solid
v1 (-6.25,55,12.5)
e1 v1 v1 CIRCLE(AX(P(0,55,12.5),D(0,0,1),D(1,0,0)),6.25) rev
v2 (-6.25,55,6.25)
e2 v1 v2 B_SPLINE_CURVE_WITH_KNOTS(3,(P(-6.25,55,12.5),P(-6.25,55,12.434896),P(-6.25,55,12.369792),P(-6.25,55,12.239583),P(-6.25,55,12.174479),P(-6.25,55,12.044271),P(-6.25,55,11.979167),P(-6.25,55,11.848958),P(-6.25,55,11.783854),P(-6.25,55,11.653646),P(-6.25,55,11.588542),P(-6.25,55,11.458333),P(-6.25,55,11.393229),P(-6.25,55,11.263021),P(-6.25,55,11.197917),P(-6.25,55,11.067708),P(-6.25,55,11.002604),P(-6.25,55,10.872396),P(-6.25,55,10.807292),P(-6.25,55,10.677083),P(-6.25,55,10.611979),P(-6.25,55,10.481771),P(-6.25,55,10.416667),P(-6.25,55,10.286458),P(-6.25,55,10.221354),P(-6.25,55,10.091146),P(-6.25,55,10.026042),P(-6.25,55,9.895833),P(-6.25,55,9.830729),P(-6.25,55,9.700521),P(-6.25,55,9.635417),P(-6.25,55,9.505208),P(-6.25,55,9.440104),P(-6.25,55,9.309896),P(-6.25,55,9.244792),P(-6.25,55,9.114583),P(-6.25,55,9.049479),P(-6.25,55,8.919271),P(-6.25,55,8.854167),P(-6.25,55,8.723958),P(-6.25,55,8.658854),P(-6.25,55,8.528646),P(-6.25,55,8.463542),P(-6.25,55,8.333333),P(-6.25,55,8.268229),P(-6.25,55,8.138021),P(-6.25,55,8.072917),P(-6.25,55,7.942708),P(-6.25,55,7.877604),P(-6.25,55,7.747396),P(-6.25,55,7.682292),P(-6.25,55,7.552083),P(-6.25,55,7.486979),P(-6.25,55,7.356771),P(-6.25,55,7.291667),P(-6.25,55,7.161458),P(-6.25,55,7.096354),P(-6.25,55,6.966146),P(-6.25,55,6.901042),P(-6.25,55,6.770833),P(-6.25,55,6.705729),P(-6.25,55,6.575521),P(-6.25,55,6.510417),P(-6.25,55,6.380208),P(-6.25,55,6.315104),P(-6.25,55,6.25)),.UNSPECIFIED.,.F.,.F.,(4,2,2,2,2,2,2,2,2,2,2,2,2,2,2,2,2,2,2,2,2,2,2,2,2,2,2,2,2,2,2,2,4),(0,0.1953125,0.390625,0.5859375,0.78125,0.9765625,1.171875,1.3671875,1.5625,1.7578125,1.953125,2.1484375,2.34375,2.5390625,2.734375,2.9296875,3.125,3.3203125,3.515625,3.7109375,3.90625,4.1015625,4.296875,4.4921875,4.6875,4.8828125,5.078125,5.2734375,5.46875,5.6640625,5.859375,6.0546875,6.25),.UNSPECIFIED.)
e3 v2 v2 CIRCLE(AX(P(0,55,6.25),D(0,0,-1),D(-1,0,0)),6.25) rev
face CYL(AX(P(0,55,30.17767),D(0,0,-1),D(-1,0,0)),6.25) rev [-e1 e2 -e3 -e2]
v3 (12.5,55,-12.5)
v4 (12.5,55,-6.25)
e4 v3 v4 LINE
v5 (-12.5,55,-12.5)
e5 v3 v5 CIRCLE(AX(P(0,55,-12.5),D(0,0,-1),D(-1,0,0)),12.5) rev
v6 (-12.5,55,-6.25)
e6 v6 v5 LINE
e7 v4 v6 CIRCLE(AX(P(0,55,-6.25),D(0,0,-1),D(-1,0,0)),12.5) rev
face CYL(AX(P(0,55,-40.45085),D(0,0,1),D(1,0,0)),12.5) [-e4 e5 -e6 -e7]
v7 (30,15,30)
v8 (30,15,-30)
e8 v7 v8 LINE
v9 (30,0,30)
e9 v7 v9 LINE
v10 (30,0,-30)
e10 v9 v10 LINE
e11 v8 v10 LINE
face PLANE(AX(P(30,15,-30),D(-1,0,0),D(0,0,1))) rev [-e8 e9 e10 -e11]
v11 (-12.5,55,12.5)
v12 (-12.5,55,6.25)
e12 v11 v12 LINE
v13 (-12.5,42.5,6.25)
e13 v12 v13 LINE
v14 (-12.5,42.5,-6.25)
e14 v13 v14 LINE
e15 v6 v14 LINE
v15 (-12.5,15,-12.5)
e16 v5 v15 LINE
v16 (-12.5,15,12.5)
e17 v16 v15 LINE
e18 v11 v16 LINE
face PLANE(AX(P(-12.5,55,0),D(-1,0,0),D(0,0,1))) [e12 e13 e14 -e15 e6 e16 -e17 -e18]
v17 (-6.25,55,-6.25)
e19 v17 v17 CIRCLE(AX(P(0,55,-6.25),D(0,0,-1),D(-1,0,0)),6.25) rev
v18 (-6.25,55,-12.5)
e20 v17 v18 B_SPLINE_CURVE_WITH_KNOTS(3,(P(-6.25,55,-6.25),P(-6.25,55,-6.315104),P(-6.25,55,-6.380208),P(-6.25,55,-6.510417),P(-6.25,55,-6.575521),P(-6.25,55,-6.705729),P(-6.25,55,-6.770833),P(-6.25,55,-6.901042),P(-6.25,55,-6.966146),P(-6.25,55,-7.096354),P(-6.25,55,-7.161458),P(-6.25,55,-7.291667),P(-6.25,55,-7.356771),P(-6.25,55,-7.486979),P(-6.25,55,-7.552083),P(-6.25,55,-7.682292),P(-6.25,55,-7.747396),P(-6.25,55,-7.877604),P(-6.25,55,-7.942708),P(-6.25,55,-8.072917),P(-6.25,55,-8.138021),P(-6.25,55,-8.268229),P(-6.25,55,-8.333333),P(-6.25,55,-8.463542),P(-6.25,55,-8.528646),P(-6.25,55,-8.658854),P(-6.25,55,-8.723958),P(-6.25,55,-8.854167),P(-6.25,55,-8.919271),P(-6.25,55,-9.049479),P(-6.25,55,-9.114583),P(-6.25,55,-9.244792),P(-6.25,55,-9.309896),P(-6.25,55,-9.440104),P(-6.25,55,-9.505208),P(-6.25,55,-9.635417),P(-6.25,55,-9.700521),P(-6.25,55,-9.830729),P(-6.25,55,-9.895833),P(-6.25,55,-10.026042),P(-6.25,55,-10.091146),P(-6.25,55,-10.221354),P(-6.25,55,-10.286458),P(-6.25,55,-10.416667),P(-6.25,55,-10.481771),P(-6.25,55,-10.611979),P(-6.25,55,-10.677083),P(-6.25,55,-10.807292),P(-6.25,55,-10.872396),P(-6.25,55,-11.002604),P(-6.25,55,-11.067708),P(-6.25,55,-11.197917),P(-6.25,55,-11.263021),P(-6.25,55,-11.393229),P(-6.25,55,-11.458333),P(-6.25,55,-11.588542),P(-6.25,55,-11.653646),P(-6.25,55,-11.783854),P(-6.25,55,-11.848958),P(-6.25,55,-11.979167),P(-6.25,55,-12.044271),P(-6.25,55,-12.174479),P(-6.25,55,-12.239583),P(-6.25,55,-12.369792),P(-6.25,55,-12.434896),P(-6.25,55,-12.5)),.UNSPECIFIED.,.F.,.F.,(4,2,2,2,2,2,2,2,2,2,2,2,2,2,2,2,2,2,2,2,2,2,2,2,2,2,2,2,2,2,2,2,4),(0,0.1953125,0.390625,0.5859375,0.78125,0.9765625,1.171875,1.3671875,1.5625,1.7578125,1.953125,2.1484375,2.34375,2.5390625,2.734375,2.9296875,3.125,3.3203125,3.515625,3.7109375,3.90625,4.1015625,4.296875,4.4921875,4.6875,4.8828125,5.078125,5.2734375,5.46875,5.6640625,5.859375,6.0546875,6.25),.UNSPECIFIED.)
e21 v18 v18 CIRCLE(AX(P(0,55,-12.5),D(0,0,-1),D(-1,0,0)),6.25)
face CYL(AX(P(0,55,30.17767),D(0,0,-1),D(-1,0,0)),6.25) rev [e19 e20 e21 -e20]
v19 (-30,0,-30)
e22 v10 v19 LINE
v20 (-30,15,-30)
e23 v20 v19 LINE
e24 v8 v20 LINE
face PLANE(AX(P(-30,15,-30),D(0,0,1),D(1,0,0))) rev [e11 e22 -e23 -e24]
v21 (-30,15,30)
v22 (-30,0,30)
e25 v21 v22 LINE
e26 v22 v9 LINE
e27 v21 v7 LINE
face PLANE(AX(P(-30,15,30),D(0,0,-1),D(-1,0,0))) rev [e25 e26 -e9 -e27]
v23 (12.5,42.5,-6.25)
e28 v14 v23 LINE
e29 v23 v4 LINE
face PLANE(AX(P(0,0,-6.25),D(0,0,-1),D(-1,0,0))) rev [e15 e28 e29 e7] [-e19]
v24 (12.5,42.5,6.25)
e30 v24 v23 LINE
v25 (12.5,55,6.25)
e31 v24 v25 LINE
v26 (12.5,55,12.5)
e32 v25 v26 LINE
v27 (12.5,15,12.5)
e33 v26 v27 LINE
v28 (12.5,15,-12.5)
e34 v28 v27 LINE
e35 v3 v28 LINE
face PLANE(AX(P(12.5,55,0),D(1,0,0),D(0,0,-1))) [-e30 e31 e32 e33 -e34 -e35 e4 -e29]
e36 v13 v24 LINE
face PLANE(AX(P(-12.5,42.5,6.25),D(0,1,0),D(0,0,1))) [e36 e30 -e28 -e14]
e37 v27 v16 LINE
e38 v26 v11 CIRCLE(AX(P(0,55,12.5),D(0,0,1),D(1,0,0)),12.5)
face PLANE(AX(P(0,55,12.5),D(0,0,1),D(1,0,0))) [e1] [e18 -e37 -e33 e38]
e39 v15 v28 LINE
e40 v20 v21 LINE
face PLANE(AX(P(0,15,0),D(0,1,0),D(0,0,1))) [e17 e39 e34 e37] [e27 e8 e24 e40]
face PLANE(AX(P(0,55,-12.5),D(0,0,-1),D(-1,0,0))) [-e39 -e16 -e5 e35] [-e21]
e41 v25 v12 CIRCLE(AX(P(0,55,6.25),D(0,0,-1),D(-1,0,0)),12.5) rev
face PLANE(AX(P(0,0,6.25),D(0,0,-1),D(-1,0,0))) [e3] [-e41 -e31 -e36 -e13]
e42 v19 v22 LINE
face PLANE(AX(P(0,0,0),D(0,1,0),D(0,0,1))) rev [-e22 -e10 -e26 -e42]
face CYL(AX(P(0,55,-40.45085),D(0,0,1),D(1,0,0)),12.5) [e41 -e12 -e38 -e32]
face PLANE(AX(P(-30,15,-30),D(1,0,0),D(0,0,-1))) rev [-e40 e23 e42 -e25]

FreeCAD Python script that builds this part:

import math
import FreeCAD as App
import Part
import Sketcher
Q = App.Units.Quantity

doc = App.newDocument("Part")
body = doc.addObject("PartDesign::Body", "Body")

# Sketch on XZ plane
sketch1 = body.newObject("Sketcher::SketchObject", "Sketch")
sketch1.AttachmentSupport = (doc.getObject("XZ_Plane"), [""])
sketch1.MapMode = "FlatFace"
sketch1.addGeometry([
    Part.LineSegment(App.Vector(-30, -30, 0), App.Vector(-30, 30, 0)),
    Part.LineSegment(App.Vector(-30, 30, 0), App.Vector(30, 30, 0)),
    Part.LineSegment(App.Vector(30, 30, 0), App.Vector(30, -30, 0)),
    Part.LineSegment(App.Vector(30, -30, 0), App.Vector(-30, -30, 0)),
], False)
sketch1.addConstraint([
    Sketcher.Constraint("Coincident", 0, 2, 1, 1),
    Sketcher.Constraint("Coincident", 1, 2, 2, 1),
    Sketcher.Constraint("Coincident", 2, 2, 3, 1),
    Sketcher.Constraint("Coincident", 3, 2, 0, 1),
    Sketcher.Constraint("Vertical", 0),
    Sketcher.Constraint("Horizontal", 1),
    Sketcher.Constraint("Vertical", 2),
    Sketcher.Constraint("Horizontal", 3),
    Sketcher.Constraint("Symmetric", 0, 2, 2, 2, -1, 1),
    Sketcher.Constraint("Equal", 3, 0),
    Sketcher.Constraint("DistanceX", 1, 1, 1, 2, Q("60 mm")),
])
pad1 = body.newObject("PartDesign::Pad", "Pad")
pad1.Profile = sketch1
pad1.Length = 15
pad1.Reversed = True

# Sketch on XZ plane
sketch2 = body.newObject("Sketcher::SketchObject", "Sketch001")
sketch2.AttachmentSupport = (doc.getObject("XZ_Plane"), [""])
sketch2.MapMode = "FlatFace"
sketch2.AttachmentOffset = App.Placement(App.Vector(0, 0, -15), App.Rotation())
sketch2.addGeometry([
    Part.LineSegment(App.Vector(-12, -12, 0), App.Vector(-12, 12, 0)),
    Part.LineSegment(App.Vector(-12, 12, 0), App.Vector(12, 12, 0)),
    Part.LineSegment(App.Vector(12, 12, 0), App.Vector(12, -12, 0)),
    Part.LineSegment(App.Vector(12, -12, 0), App.Vector(-12, -12, 0)),
], False)
sketch2.addConstraint([
    Sketcher.Constraint("Coincident", 0, 2, 1, 1),
    Sketcher.Constraint("Coincident", 1, 2, 2, 1),
    Sketcher.Constraint("Coincident", 2, 2, 3, 1),
    Sketcher.Constraint("Coincident", 3, 2, 0, 1),
    Sketcher.Constraint("Vertical", 0),
    Sketcher.Constraint("Horizontal", 1),
    Sketcher.Constraint("Vertical", 2),
    Sketcher.Constraint("Horizontal", 3),
    Sketcher.Constraint("Symmetric", 0, 2, 2, 2, -1, 1),
    Sketcher.Constraint("Equal", 3, 0),
    Sketcher.Constraint("DistanceX", 1, 1, 1, 2, Q("25 mm")),
])
pad2 = body.newObject("PartDesign::Pad", "Pad001")
pad2.Profile = sketch2
pad2.Length = 40
pad2.Reversed = True

# Sketch on XY plane
sketch3 = body.newObject("Sketcher::SketchObject", "Sketch002")
sketch3.AttachmentSupport = (doc.getObject("XY_Plane"), [""])
sketch3.MapMode = "FlatFace"
sketch3.AttachmentOffset = App.Placement(App.Vector(0, 0, 12.5), App.Rotation())
sketch3.addGeometry([
    Part.LineSegment(App.Vector(-12, 55, 0), App.Vector(12, 55, 0)),
    Part.ArcOfCircle(Part.Circle(App.Vector(0, 55, 0), App.Vector(0, 0, 1), 12), math.radians(0), math.radians(180)),
], False)
sketch3.addConstraint([
    Sketcher.Constraint("Coincident", 0, 1, 1, 2),
    Sketcher.Constraint("Coincident", 1, 1, 0, 2),
    Sketcher.Constraint("Horizontal", 0),
    Sketcher.Constraint("PointOnObject", 1, 3, -2),
    Sketcher.Constraint("Horizontal", 1, 3, 0, 1),
    Sketcher.Constraint("Radius", 1, Q("12.5 mm")),
    Sketcher.Constraint("DistanceY", -1, 1, 1, 3, Q("55 mm")),
])
pad3 = body.newObject("PartDesign::Pad", "Pad002")
pad3.Profile = sketch3
pad3.Length = 25
pad3.Reversed = True

# Sketch on XY plane
sketch4 = body.newObject("Sketcher::SketchObject", "Sketch003")
sketch4.AttachmentSupport = (doc.getObject("XY_Plane"), [""])
sketch4.MapMode = "FlatFace"
sketch4.AttachmentOffset = App.Placement(App.Vector(0, 0, -12.5), App.Rotation())
sketch4.addGeometry(Part.Circle(App.Vector(0, 55, 0), App.Vector(0, 0, 1), 6), False)
sketch4.addConstraint([
    Sketcher.Constraint("PointOnObject", 0, 3, -2),
    Sketcher.Constraint("Diameter", 0, Q("12.5 mm")),
    Sketcher.Constraint("DistanceY", -1, 1, 0, 3, Q("55 mm")),
])
pocket1 = body.newObject("PartDesign::Pocket", "Pocket")
pocket1.Profile = sketch4
pocket1.Length = 25
pocket1.Reversed = True

# Sketch on XY plane
sketch5 = body.newObject("Sketcher::SketchObject", "Sketch004")
sketch5.AttachmentSupport = (doc.getObject("XY_Plane"), [""])
sketch5.MapMode = "FlatFace"
sketch5.addGeometry([
    Part.LineSegment(App.Vector(-12, 68, 0), App.Vector(-12, 42, 0)),
    Part.LineSegment(App.Vector(-12, 42, 0), App.Vector(12, 42, 0)),
    Part.LineSegment(App.Vector(12, 42, 0), App.Vector(12, 68, 0)),
    Part.LineSegment(App.Vector(12, 68, 0), App.Vector(-12, 68, 0)),
], False)
sketch5.addConstraint([
    Sketcher.Constraint("Coincident", 0, 2, 1, 1),
    Sketcher.Constraint("Coincident", 1, 2, 2, 1),
    Sketcher.Constraint("Coincident", 2, 2, 3, 1),
    Sketcher.Constraint("Coincident", 3, 2, 0, 1),
    Sketcher.Constraint("Vertical", 0),
    Sketcher.Constraint("Horizontal", 1),
    Sketcher.Constraint("Vertical", 2),
    Sketcher.Constraint("Horizontal", 3),
    Sketcher.Constraint("Equal", 3, 0),
    Sketcher.Constraint("DistanceX", 1, 1, 1, 2, Q("25 mm")),
    Sketcher.Constraint("DistanceX", 0, 2, -1, 1, Q("12.5 mm")),
    Sketcher.Constraint("DistanceY", -1, 1, 0, 2, Q("42.5 mm")),
])
pocket2 = body.newObject("PartDesign::Pocket", "Pocket001")
pocket2.Profile = sketch5
pocket2.Type = "TwoLengths"
pocket2.Length = 6.25
pocket2.Length2 = 6.25
pocket2.Reversed = True

doc.recompute()
